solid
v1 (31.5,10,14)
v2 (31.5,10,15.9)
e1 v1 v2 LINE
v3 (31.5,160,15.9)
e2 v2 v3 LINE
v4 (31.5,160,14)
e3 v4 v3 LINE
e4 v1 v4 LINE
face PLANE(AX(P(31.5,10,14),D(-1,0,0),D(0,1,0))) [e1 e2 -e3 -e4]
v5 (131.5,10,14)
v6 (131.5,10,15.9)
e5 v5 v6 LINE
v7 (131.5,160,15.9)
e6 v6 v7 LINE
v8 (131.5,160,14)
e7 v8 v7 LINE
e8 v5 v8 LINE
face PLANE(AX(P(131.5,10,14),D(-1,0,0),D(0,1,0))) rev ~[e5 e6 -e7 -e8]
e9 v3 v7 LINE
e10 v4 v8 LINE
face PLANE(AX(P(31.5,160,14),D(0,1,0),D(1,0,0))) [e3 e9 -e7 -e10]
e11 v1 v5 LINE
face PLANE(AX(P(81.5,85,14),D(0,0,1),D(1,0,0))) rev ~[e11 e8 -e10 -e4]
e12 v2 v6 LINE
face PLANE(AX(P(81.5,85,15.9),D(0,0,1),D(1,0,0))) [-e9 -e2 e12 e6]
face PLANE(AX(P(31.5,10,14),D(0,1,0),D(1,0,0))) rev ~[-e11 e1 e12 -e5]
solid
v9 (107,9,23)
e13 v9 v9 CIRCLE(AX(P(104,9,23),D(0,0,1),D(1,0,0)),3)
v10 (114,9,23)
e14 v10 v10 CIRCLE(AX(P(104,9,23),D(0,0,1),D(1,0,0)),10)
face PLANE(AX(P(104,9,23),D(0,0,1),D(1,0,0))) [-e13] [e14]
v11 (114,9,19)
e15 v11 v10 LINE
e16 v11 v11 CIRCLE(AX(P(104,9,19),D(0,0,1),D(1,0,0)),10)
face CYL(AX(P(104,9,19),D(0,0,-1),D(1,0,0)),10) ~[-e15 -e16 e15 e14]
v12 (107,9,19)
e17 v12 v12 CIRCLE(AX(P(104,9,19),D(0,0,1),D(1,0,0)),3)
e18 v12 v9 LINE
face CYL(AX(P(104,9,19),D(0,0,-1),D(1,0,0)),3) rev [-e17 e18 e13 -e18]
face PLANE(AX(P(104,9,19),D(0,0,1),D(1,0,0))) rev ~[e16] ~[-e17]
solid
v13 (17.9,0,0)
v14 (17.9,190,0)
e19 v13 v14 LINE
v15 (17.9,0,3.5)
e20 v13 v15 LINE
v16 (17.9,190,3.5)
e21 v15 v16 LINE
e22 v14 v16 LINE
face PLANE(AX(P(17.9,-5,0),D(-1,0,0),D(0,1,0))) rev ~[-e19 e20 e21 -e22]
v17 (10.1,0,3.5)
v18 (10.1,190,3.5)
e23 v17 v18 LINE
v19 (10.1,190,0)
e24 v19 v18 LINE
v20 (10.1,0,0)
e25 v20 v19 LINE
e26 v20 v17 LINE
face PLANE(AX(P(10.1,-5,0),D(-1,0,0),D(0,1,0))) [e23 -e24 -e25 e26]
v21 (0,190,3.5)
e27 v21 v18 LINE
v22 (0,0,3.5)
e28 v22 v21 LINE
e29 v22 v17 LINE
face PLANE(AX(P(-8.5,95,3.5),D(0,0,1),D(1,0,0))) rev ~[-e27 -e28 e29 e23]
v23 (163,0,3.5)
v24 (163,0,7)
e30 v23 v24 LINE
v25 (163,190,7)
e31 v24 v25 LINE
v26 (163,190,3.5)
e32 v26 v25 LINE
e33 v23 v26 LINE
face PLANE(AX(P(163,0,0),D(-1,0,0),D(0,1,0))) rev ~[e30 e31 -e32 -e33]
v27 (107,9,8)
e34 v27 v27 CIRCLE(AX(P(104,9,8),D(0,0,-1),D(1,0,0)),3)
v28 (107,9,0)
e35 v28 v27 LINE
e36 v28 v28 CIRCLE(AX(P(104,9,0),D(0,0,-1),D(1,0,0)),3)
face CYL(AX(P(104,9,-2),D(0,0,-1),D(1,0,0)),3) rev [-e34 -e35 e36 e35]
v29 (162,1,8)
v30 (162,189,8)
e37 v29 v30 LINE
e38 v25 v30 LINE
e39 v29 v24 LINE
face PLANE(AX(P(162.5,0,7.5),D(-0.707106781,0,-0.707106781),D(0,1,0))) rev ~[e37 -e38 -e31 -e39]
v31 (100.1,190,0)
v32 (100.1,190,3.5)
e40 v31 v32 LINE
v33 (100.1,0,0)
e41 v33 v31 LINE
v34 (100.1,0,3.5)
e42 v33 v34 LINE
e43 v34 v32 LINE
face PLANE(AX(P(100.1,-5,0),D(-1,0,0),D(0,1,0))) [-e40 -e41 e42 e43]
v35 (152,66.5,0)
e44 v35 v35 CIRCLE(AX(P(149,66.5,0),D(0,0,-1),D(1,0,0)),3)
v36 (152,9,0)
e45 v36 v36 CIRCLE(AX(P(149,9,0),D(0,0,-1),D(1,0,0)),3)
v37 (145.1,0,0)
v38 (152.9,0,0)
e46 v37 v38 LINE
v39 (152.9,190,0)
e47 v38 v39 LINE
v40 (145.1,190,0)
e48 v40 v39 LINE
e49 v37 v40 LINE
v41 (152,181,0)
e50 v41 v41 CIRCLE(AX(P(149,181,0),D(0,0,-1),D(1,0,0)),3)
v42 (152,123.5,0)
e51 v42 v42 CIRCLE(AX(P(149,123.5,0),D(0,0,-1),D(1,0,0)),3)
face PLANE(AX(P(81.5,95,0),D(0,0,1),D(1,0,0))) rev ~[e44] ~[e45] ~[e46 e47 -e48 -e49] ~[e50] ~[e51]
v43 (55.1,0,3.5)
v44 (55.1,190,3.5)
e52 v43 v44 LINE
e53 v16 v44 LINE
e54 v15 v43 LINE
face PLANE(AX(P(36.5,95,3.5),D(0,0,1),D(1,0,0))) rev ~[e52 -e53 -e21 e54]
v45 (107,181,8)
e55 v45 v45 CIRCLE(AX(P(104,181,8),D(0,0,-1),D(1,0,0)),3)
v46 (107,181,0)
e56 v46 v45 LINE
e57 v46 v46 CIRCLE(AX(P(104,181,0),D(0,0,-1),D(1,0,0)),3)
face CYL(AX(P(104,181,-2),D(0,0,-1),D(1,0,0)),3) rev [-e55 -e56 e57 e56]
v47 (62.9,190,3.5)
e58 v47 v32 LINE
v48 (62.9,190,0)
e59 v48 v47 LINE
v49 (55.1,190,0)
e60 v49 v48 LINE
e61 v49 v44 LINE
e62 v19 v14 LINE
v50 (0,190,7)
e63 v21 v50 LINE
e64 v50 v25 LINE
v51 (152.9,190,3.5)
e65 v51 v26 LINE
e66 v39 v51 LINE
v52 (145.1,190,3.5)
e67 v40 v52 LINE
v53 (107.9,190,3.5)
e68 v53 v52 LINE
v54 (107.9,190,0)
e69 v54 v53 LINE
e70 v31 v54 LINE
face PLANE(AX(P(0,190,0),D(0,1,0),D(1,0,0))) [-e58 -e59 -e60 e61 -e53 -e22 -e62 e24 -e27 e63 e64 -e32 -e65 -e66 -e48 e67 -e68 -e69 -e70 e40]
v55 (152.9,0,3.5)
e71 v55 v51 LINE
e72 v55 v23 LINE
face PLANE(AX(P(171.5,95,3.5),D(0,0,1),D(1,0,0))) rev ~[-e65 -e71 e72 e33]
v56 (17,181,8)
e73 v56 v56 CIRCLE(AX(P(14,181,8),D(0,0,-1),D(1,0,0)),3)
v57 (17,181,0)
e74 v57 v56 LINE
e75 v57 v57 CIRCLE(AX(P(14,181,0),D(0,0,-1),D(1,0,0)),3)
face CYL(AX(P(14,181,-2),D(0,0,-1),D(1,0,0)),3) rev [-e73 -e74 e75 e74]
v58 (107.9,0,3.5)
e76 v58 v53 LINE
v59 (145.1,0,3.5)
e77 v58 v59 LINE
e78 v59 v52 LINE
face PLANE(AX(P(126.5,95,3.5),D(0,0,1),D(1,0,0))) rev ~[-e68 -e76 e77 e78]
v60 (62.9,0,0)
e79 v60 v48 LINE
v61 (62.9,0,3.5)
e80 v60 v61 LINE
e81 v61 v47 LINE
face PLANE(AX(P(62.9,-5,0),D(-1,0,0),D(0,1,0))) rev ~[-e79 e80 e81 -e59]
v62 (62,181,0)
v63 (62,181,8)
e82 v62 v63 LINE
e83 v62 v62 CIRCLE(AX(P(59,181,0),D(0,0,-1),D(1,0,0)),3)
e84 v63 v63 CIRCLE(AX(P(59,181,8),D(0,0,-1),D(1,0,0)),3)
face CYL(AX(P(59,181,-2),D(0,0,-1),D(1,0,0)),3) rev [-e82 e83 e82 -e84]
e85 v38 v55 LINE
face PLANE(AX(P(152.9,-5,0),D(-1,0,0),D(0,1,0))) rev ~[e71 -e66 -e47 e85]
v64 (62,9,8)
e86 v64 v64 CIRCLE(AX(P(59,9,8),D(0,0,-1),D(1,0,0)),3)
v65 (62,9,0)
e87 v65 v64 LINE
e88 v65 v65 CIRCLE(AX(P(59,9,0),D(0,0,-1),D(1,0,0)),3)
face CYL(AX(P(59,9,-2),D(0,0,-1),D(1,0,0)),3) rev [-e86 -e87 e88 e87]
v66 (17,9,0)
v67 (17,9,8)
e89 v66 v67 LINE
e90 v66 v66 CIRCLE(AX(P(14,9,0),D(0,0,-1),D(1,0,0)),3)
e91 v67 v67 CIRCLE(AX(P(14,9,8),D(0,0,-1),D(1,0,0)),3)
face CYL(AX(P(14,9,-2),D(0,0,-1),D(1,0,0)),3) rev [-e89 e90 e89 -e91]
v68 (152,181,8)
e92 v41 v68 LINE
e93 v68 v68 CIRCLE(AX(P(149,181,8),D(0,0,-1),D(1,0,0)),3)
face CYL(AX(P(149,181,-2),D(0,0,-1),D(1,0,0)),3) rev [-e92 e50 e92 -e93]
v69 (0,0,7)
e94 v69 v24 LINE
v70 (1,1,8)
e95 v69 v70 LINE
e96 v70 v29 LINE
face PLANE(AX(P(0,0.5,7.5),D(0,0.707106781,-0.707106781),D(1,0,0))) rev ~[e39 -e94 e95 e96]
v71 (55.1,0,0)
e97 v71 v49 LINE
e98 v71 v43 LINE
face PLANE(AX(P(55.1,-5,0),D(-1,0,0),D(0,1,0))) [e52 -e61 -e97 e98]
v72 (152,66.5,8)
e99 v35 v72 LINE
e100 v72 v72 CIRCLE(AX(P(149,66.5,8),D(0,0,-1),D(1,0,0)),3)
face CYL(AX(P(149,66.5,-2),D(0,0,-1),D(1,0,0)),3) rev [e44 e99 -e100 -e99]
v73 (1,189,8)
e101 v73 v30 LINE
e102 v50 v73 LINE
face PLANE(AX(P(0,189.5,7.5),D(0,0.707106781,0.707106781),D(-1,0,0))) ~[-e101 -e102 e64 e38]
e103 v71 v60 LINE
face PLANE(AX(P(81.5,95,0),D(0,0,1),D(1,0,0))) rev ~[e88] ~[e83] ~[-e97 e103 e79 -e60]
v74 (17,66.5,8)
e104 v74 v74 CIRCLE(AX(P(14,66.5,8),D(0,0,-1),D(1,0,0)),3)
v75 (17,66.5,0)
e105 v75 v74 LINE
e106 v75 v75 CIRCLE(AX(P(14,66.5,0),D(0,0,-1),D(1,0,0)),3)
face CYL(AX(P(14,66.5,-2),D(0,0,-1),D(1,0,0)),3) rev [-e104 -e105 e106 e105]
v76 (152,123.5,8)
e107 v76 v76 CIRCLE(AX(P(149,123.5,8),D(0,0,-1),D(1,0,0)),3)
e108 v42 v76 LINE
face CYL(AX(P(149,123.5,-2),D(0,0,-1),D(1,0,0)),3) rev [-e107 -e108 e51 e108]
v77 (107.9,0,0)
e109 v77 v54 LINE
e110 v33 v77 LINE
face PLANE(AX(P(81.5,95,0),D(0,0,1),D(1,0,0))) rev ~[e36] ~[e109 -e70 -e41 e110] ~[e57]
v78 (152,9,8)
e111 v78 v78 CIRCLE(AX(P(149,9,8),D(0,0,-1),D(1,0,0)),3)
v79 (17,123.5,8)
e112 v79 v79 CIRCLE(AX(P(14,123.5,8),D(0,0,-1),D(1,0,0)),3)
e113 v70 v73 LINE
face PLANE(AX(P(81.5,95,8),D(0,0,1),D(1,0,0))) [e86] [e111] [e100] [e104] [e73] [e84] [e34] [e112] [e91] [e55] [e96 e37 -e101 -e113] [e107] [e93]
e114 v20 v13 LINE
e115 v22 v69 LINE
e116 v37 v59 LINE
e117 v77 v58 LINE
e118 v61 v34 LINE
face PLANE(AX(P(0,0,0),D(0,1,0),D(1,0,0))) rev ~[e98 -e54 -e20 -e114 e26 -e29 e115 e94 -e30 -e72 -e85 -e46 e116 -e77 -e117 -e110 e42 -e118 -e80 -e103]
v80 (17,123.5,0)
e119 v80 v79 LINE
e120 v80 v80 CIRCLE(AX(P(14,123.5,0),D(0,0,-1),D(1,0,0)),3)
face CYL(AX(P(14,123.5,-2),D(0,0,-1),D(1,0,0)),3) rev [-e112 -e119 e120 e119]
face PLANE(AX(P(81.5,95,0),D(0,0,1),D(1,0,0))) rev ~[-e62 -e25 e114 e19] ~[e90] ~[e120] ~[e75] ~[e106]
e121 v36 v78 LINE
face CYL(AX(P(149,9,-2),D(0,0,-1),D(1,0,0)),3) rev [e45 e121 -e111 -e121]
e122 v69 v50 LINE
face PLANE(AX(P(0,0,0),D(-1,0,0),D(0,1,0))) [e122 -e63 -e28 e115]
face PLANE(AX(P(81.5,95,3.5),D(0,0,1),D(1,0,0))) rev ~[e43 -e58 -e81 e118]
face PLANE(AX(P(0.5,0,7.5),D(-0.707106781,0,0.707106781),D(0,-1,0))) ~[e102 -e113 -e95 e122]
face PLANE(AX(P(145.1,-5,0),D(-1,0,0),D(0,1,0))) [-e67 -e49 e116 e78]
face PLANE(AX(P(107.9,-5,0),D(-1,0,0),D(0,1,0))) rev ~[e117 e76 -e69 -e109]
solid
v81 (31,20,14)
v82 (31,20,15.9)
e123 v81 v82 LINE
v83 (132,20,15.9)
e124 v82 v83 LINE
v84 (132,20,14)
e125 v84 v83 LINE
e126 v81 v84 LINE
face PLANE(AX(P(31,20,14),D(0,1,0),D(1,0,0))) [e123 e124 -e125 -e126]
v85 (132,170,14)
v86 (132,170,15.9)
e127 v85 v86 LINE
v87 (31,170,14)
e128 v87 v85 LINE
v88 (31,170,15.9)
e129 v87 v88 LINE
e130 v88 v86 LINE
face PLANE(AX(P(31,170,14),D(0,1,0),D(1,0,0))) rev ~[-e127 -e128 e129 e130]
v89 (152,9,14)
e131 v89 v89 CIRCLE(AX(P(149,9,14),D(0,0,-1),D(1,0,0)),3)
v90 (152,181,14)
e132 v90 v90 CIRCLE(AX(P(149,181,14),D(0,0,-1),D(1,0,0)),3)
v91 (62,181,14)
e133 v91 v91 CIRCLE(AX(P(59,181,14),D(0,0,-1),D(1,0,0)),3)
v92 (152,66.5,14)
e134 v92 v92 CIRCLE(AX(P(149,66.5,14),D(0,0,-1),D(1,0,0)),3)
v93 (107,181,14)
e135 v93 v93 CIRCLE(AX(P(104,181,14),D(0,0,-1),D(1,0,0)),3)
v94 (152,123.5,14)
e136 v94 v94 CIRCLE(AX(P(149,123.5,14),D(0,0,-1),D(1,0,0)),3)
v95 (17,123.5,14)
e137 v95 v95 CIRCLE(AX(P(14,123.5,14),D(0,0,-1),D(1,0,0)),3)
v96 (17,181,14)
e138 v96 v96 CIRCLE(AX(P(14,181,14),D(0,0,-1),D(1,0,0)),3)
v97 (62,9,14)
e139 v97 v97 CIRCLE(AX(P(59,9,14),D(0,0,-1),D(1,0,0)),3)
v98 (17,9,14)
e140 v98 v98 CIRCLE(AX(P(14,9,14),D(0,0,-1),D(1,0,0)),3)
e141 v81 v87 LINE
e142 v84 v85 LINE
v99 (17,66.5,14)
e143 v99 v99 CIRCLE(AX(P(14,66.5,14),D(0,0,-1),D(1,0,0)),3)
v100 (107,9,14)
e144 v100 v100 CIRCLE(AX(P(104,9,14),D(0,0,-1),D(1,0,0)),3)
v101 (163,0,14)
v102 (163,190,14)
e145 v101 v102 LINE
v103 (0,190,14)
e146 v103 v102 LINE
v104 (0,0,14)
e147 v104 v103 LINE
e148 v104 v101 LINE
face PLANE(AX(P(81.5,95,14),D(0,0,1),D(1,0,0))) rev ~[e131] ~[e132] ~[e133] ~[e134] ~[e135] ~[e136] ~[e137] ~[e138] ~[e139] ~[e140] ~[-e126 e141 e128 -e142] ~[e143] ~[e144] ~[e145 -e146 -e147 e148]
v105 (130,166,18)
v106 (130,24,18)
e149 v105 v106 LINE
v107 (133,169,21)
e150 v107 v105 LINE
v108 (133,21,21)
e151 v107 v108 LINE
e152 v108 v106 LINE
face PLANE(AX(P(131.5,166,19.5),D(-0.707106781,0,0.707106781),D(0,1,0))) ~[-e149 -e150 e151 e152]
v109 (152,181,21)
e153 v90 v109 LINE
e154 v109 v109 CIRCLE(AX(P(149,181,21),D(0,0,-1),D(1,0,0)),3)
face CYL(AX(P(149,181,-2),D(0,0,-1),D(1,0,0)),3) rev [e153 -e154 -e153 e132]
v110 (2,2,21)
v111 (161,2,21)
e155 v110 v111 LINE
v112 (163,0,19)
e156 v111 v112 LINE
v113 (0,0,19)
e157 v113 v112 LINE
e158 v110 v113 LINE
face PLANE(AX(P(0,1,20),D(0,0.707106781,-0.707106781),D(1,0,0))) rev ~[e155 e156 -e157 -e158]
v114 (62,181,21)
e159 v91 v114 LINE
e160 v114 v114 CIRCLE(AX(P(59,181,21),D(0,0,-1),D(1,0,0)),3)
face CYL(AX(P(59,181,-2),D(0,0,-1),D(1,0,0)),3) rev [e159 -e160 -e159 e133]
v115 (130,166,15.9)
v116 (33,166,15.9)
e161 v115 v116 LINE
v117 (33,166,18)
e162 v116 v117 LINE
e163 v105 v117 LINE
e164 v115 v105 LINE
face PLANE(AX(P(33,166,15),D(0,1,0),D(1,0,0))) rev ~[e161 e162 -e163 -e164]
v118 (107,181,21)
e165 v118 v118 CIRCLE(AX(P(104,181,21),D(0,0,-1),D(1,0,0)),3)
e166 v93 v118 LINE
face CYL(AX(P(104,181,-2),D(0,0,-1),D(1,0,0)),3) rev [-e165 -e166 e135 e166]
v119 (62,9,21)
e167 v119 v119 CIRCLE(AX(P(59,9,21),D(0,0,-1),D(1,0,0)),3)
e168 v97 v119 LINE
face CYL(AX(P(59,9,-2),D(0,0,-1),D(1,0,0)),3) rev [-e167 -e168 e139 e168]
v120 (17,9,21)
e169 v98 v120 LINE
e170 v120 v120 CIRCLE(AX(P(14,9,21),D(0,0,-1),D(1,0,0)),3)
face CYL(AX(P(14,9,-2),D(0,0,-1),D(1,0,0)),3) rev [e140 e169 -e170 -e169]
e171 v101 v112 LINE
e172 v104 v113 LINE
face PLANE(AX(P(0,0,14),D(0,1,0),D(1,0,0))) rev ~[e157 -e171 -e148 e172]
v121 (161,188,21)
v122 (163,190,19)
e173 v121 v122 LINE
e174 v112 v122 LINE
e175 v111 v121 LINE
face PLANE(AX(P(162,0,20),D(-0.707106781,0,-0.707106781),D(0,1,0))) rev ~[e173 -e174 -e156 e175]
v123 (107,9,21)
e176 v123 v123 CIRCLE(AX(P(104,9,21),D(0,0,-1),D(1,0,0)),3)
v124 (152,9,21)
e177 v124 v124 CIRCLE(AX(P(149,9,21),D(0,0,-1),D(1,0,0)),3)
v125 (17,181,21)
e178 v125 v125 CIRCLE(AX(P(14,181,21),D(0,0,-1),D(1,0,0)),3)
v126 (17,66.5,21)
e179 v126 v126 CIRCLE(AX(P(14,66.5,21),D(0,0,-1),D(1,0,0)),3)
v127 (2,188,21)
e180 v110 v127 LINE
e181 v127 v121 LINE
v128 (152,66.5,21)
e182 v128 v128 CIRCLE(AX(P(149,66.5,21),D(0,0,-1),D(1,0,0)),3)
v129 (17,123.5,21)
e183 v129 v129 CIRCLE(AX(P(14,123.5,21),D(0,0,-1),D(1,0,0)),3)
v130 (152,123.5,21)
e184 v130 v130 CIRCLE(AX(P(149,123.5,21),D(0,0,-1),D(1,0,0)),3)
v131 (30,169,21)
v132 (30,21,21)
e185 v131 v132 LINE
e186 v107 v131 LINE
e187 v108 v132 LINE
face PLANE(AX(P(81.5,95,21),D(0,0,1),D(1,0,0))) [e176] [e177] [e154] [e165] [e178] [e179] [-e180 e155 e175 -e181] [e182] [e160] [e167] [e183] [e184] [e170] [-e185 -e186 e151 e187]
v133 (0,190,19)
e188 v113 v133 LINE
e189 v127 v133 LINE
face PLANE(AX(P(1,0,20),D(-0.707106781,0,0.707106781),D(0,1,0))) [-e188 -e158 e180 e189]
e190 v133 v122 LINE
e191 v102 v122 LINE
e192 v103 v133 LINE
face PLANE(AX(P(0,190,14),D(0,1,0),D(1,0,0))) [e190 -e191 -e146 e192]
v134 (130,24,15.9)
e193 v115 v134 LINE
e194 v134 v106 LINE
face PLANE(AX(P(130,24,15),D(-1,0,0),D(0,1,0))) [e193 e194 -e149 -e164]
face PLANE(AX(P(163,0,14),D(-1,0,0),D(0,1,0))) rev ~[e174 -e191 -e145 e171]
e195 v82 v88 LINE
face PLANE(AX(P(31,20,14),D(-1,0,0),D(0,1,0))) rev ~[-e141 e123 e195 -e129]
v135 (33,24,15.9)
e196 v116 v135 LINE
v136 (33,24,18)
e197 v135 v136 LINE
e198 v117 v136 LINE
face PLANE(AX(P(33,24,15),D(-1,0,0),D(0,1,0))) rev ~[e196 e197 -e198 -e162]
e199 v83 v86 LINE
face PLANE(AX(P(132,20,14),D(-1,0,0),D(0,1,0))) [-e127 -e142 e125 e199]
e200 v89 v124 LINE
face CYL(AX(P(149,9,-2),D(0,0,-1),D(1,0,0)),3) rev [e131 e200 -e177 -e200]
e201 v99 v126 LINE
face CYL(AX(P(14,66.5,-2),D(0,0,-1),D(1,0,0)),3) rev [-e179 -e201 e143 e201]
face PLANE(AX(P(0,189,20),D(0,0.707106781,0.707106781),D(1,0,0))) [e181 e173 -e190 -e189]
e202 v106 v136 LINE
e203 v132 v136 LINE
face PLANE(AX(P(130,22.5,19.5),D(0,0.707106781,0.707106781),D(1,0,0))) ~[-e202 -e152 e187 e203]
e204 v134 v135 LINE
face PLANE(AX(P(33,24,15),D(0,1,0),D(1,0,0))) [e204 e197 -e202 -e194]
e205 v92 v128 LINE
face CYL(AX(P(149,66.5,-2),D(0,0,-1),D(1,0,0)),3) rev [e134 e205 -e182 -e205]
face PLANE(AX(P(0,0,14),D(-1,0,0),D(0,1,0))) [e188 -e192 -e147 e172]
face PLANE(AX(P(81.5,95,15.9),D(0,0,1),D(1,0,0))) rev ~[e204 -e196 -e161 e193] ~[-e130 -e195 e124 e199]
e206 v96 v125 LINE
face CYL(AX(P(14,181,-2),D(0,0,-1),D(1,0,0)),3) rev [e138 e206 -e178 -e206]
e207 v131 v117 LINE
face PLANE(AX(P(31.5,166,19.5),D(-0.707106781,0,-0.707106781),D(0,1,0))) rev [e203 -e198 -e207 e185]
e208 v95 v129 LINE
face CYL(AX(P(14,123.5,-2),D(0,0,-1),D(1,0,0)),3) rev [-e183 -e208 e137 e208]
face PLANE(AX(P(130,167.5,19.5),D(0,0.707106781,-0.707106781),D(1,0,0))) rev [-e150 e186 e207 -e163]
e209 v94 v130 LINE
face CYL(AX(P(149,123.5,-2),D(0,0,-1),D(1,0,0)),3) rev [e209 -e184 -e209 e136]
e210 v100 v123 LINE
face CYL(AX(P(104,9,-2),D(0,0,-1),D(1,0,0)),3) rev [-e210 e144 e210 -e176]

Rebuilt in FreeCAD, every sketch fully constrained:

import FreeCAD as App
import Part
import Sketcher
from FreeCAD import Vector


def edges_at(feature, points):
    """Names of the edges that pass closest to the given points."""
    edges = feature.Shape.Edges
    near = lambda p: min(range(len(edges)), key=lambda i: edges[i].distToShape(Part.Vertex(*p))[0])
    return sorted({f"Edge{near(p) + 1}" for p in points})


def add_polygon(sketch, points):
    """Adds a closed chain of lines whose ends are joined by coincident constraints."""
    first, n = sketch.GeometryCount, len(points)
    for a, b in zip(points, points[1:] + points[:1]):
        sketch.addGeometry(Part.LineSegment(App.Vector(*a, 0), App.Vector(*b, 0)), False)
    for i in range(n):
        sketch.addConstraint(Sketcher.Constraint("Coincident", first + i, 2, first + (i + 1) % n, 1))

doc = App.newDocument("Part")
body = doc.addObject("PartDesign::Body", "Body")

# Sketch on XY plane
sketch1 = body.newObject("Sketcher::SketchObject", "Sketch")
sketch1.AttachmentSupport = (doc.getObject("XY_Plane"), [""])
sketch1.MapMode = "FlatFace"
sketch1.AttachmentOffset = App.Placement(Vector(0, 0, 14), App.Rotation())
add_polygon(sketch1, [(32, 160), (32, 10), (132, 10), (132, 160)])  # lines 0-3
sketch1.addConstraint([
    Sketcher.Constraint("Vertical", 0),
    Sketcher.Constraint("Horizontal", 1),
    Sketcher.Constraint("Vertical", 2),
    Sketcher.Constraint("Horizontal", 3),
    Sketcher.Constraint("DistanceX", 1, 1, 1, 2, 100.0),
    Sketcher.Constraint("DistanceY", 0, 2, 0, 1, 150.0),
    Sketcher.Constraint("DistanceY", -1, 1, 0, 2, 10.0),
    Sketcher.Constraint("DistanceX", -1, 1, 0, 2, 31.5),
])
pad1 = body.newObject("PartDesign::Pad", "Pad")
pad1.Profile = sketch1
pad1.Length = 1.9
body2 = doc.addObject("PartDesign::Body", "Body001")

# Sketch on XY plane
sketch2 = body2.newObject("Sketcher::SketchObject", "Sketch001")
sketch2.AttachmentSupport = (doc.getObject("XY_Plane001"), [""])
sketch2.MapMode = "FlatFace"
sketch2.AttachmentOffset = App.Placement(Vector(0, 0, 19), App.Rotation())
sketch2.addGeometry([
    Part.Circle(Vector(104, 9, 0), Vector(0, 0, 1), 10),
    Part.Circle(Vector(104, 9, 0), Vector(0, 0, 1), 3),
], False)
sketch2.addConstraint([
    Sketcher.Constraint("Coincident", 1, 3, 0, 3),
    Sketcher.Constraint("Diameter", 0, 20.0),
    Sketcher.Constraint("Diameter", 1, 6.0),
    Sketcher.Constraint("DistanceX", -1, 1, 0, 3, 104.0),
    Sketcher.Constraint("DistanceY", -1, 1, 0, 3, 9.0),
])
pad2 = body2.newObject("PartDesign::Pad", "Pad001")
pad2.Profile = sketch2
pad2.Length = 4
body3 = doc.addObject("PartDesign::Body", "Body002")

# Sketch on XY plane
sketch3 = body3.newObject("Sketcher::SketchObject", "Sketch002")
sketch3.AttachmentSupport = (doc.getObject("XY_Plane002"), [""])
sketch3.MapMode = "FlatFace"
sketch3.AttachmentOffset = App.Placement(Vector(0, 0, 15), App.Rotation())
add_polygon(sketch3, [(33, 166), (33, 24), (130, 24), (130, 166)])  # lines 0-3
sketch3.addConstraint([
    Sketcher.Constraint("Vertical", 0),
    Sketcher.Constraint("Horizontal", 1),
    Sketcher.Constraint("Vertical", 2),
    Sketcher.Constraint("Horizontal", 3),
    Sketcher.Constraint("DistanceX", 1, 1, 1, 2, 97.0),
    Sketcher.Constraint("DistanceY", 0, 2, 0, 1, 142.0),
    Sketcher.Constraint("DistanceX", -1, 1, 0, 2, 33.0),
    Sketcher.Constraint("DistanceY", -1, 1, 0, 2, 24.0),
])
pad3 = body3.newObject("PartDesign::Pad", "Pad002")
pad3.Profile = sketch3
pad3.Length = 10
body4 = doc.addObject("PartDesign::Body", "Body003")

# Sketch on XY plane
sketch4 = body4.newObject("Sketcher::SketchObject", "Sketch003")
sketch4.AttachmentSupport = (doc.getObject("XY_Plane003"), [""])
sketch4.MapMode = "FlatFace"
sketch4.AttachmentOffset = App.Placement(Vector(0, 0, 14), App.Rotation())
add_polygon(sketch4, [(31, 170), (31, 20), (132, 20), (132, 170)])  # lines 0-3
sketch4.addConstraint([
    Sketcher.Constraint("Vertical", 0),
    Sketcher.Constraint("Horizontal", 1),
    Sketcher.Constraint("Vertical", 2),
    Sketcher.Constraint("Horizontal", 3),
    Sketcher.Constraint("DistanceX", 1, 1, 1, 2, 101.0),
    Sketcher.Constraint("DistanceY", 0, 2, 0, 1, 150.0),
    Sketcher.Constraint("DistanceX", -1, 1, 0, 2, 31.0),
    Sketcher.Constraint("DistanceY", -1, 1, 0, 2, 20.0),
])
pad4 = body4.newObject("PartDesign::Pad", "Pad003")
pad4.Profile = sketch4
pad4.Length = 1.9
body5 = doc.addObject("PartDesign::Body", "Body004")

# Sketch on XY plane
sketch5 = body5.newObject("Sketcher::SketchObject", "Sketch004")
sketch5.AttachmentSupport = (doc.getObject("XY_Plane004"), [""])
sketch5.MapMode = "FlatFace"
sketch5.AttachmentOffset = App.Placement(Vector(0, 0, -2), App.Rotation())
sketch5.addGeometry(Part.Circle(Vector(14, 66.5, 0), Vector(0, 0, 1), 3), False)
sketch5.addConstraint([
    Sketcher.Constraint("Diameter", 0, 6.0),
    Sketcher.Constraint("DistanceX", -1, 1, 0, 3, 14.0),
    Sketcher.Constraint("DistanceY", -1, 1, 0, 3, 66.5),
])
pad5 = body5.newObject("PartDesign::Pad", "Pad004")
pad5.Profile = sketch5
pad5.Length = 30
body6 = doc.addObject("PartDesign::Body", "Body005")

# Sketch on XY plane
sketch6 = body6.newObject("Sketcher::SketchObject", "Sketch005")
sketch6.AttachmentSupport = (doc.getObject("XY_Plane005"), [""])
sketch6.MapMode = "FlatFace"
sketch6.AttachmentOffset = App.Placement(Vector(0, 0, -2), App.Rotation())
sketch6.addGeometry(Part.Circle(Vector(14, 123.5, 0), Vector(0, 0, 1), 3), False)
sketch6.addConstraint([
    Sketcher.Constraint("Diameter", 0, 6.0),
    Sketcher.Constraint("DistanceX", -1, 1, 0, 3, 14.0),
    Sketcher.Constraint("DistanceY", -1, 1, 0, 3, 123.5),
])
pad6 = body6.newObject("PartDesign::Pad", "Pad005")
pad6.Profile = sketch6
pad6.Length = 30
body7 = doc.addObject("PartDesign::Body", "Body006")

# Sketch on XY plane
sketch7 = body7.newObject("Sketcher::SketchObject", "Sketch006")
sketch7.AttachmentSupport = (doc.getObject("XY_Plane006"), [""])
sketch7.MapMode = "FlatFace"
sketch7.AttachmentOffset = App.Placement(Vector(0, 0, -2), App.Rotation())
sketch7.addGeometry(Part.Circle(Vector(14, 181, 0), Vector(0, 0, 1), 3), False)
sketch7.addConstraint([
    Sketcher.Constraint("Diameter", 0, 6.0),
    Sketcher.Constraint("DistanceX", -1, 1, 0, 3, 14.0),
    Sketcher.Constraint("DistanceY", -1, 1, 0, 3, 181.0),
])
pad7 = body7.newObject("PartDesign::Pad", "Pad006")
pad7.Profile = sketch7
pad7.Length = 30
body8 = doc.addObject("PartDesign::Body", "Body007")

# Sketch on XY plane
sketch8 = body8.newObject("Sketcher::SketchObject", "Sketch007")
sketch8.AttachmentSupport = (doc.getObject("XY_Plane007"), [""])
sketch8.MapMode = "FlatFace"
sketch8.AttachmentOffset = App.Placement(Vector(0, 0, -2), App.Rotation())
sketch8.addGeometry(Part.Circle(Vector(59, 181, 0), Vector(0, 0, 1), 3), False)
sketch8.addConstraint([
    Sketcher.Constraint("Diameter", 0, 6.0),
    Sketcher.Constraint("DistanceX", -1, 1, 0, 3, 59.0),
    Sketcher.Constraint("DistanceY", -1, 1, 0, 3, 181.0),
])
pad8 = body8.newObject("PartDesign::Pad", "Pad007")
pad8.Profile = sketch8
pad8.Length = 30
body9 = doc.addObject("PartDesign::Body", "Body008")

# Sketch on XY plane
sketch9 = body9.newObject("Sketcher::SketchObject", "Sketch008")
sketch9.AttachmentSupport = (doc.getObject("XY_Plane008"), [""])
sketch9.MapMode = "FlatFace"
sketch9.AttachmentOffset = App.Placement(Vector(0, 0, -2), App.Rotation())
sketch9.addGeometry(Part.Circle(Vector(104, 181, 0), Vector(0, 0, 1), 3), False)
sketch9.addConstraint([
    Sketcher.Constraint("Diameter", 0, 6.0),
    Sketcher.Constraint("DistanceX", -1, 1, 0, 3, 104.0),
    Sketcher.Constraint("DistanceY", -1, 1, 0, 3, 181.0),
])
pad9 = body9.newObject("PartDesign::Pad", "Pad008")
pad9.Profile = sketch9
pad9.Length = 30
body10 = doc.addObject("PartDesign::Body", "Body009")

# Sketch on XY plane
sketch10 = body10.newObject("Sketcher::SketchObject", "Sketch009")
sketch10.AttachmentSupport = (doc.getObject("XY_Plane009"), [""])
sketch10.MapMode = "FlatFace"
sketch10.AttachmentOffset = App.Placement(Vector(0, 0, -2), App.Rotation())
sketch10.addGeometry(Part.Circle(Vector(149, 181, 0), Vector(0, 0, 1), 3), False)
sketch10.addConstraint([
    Sketcher.Constraint("Diameter", 0, 6.0),
    Sketcher.Constraint("DistanceX", -1, 1, 0, 3, 149.0),
    Sketcher.Constraint("DistanceY", -1, 1, 0, 3, 181.0),
])
pad10 = body10.newObject("PartDesign::Pad", "Pad009")
pad10.Profile = sketch10
pad10.Length = 30
body11 = doc.addObject("PartDesign::Body", "Body010")

# Sketch on XY plane
sketch11 = body11.newObject("Sketcher::SketchObject", "Sketch010")
sketch11.AttachmentSupport = (doc.getObject("XY_Plane010"), [""])
sketch11.MapMode = "FlatFace"
sketch11.AttachmentOffset = App.Placement(Vector(0, 0, -2), App.Rotation())
sketch11.addGeometry(Part.Circle(Vector(149, 123.5, 0), Vector(0, 0, 1), 3), False)
sketch11.addConstraint([
    Sketcher.Constraint("Diameter", 0, 6.0),
    Sketcher.Constraint("DistanceX", -1, 1, 0, 3, 149.0),
    Sketcher.Constraint("DistanceY", -1, 1, 0, 3, 123.5),
])
pad11 = body11.newObject("PartDesign::Pad", "Pad010")
pad11.Profile = sketch11
pad11.Length = 30
body12 = doc.addObject("PartDesign::Body", "Body011")

# Sketch on XY plane
sketch12 = body12.newObject("Sketcher::SketchObject", "Sketch011")
sketch12.AttachmentSupport = (doc.getObject("XY_Plane011"), [""])
sketch12.MapMode = "FlatFace"
sketch12.AttachmentOffset = App.Placement(Vector(0, 0, -2), App.Rotation())
sketch12.addGeometry(Part.Circle(Vector(149, 66.5, 0), Vector(0, 0, 1), 3), False)
sketch12.addConstraint([
    Sketcher.Constraint("Diameter", 0, 6.0),
    Sketcher.Constraint("DistanceX", -1, 1, 0, 3, 149.0),
    Sketcher.Constraint("DistanceY", -1, 1, 0, 3, 66.5),
])
pad12 = body12.newObject("PartDesign::Pad", "Pad011")
pad12.Profile = sketch12
pad12.Length = 30
body13 = doc.addObject("PartDesign::Body", "Body012")

# Sketch on XY plane
sketch13 = body13.newObject("Sketcher::SketchObject", "Sketch012")
sketch13.AttachmentSupport = (doc.getObject("XY_Plane012"), [""])
sketch13.MapMode = "FlatFace"
sketch13.AttachmentOffset = App.Placement(Vector(0, 0, -2), App.Rotation())
sketch13.addGeometry(Part.Circle(Vector(149, 9, 0), Vector(0, 0, 1), 3), False)
sketch13.addConstraint([
    Sketcher.Constraint("Diameter", 0, 6.0),
    Sketcher.Constraint("DistanceX", -1, 1, 0, 3, 149.0),
    Sketcher.Constraint("DistanceY", -1, 1, 0, 3, 9.0),
])
pad13 = body13.newObject("PartDesign::Pad", "Pad012")
pad13.Profile = sketch13
pad13.Length = 30
body14 = doc.addObject("PartDesign::Body", "Body013")

# Sketch on XY plane
sketch14 = body14.newObject("Sketcher::SketchObject", "Sketch013")
sketch14.AttachmentSupport = (doc.getObject("XY_Plane013"), [""])
sketch14.MapMode = "FlatFace"
sketch14.AttachmentOffset = App.Placement(Vector(0, 0, -2), App.Rotation())
sketch14.addGeometry(Part.Circle(Vector(104, 9, 0), Vector(0, 0, 1), 3), False)
sketch14.addConstraint([
    Sketcher.Constraint("Diameter", 0, 6.0),
    Sketcher.Constraint("DistanceX", -1, 1, 0, 3, 104.0),
    Sketcher.Constraint("DistanceY", -1, 1, 0, 3, 9.0),
])
pad14 = body14.newObject("PartDesign::Pad", "Pad013")
pad14.Profile = sketch14
pad14.Length = 30
body15 = doc.addObject("PartDesign::Body", "Body014")

# Sketch on XY plane
sketch15 = body15.newObject("Sketcher::SketchObject", "Sketch014")
sketch15.AttachmentSupport = (doc.getObject("XY_Plane014"), [""])
sketch15.MapMode = "FlatFace"
sketch15.AttachmentOffset = App.Placement(Vector(0, 0, -2), App.Rotation())
sketch15.addGeometry(Part.Circle(Vector(59, 9, 0), Vector(0, 0, 1), 3), False)
sketch15.addConstraint([
    Sketcher.Constraint("Diameter", 0, 6.0),
    Sketcher.Constraint("DistanceX", -1, 1, 0, 3, 59.0),
    Sketcher.Constraint("DistanceY", -1, 1, 0, 3, 9.0),
])
pad15 = body15.newObject("PartDesign::Pad", "Pad014")
pad15.Profile = sketch15
pad15.Length = 30
body16 = doc.addObject("PartDesign::Body", "Body015")

# Sketch on XY plane
sketch16 = body16.newObject("Sketcher::SketchObject", "Sketch015")
sketch16.AttachmentSupport = (doc.getObject("XY_Plane015"), [""])
sketch16.MapMode = "FlatFace"
sketch16.AttachmentOffset = App.Placement(Vector(0, 0, -2), App.Rotation())
sketch16.addGeometry(Part.Circle(Vector(14, 9, 0), Vector(0, 0, 1), 3), False)
sketch16.addConstraint([
    Sketcher.Constraint("Diameter", 0, 6.0),
    Sketcher.Constraint("DistanceX", -1, 1, 0, 3, 14.0),
    Sketcher.Constraint("DistanceY", -1, 1, 0, 3, 9.0),
])
pad16 = body16.newObject("PartDesign::Pad", "Pad015")
pad16.Profile = sketch16
pad16.Length = 30
body17 = doc.addObject("PartDesign::Body", "Body016")

# Sketch on XY plane
sketch17 = body17.newObject("Sketcher::SketchObject", "Sketch016")
sketch17.AttachmentSupport = (doc.getObject("XY_Plane016"), [""])
sketch17.MapMode = "FlatFace"
sketch17.AttachmentOffset = App.Placement(Vector(0, 0, 14), App.Rotation())
add_polygon(sketch17, [(0, 190), (0, 0), (163, 0), (163, 190)])  # lines 0-3
sketch17.addConstraint([
    Sketcher.Constraint("Vertical", 0),
    Sketcher.Constraint("Horizontal", 1),
    Sketcher.Constraint("Vertical", 2),
    Sketcher.Constraint("Horizontal", 3),
    Sketcher.Constraint("Coincident", 0, 2, -1, 1),
    Sketcher.Constraint("DistanceX", 1, 1, 1, 2, 163.0),
    Sketcher.Constraint("DistanceY", 0, 2, 0, 1, 190.0),
])
pad17 = body17.newObject("PartDesign::Pad", "Pad016")
pad17.Profile = sketch17
pad17.Length = 7
doc.recompute()

boolean = body17.newObject("PartDesign::Boolean", "Boolean")
boolean.Type = "Cut"
boolean.addObjects([body16])
doc.recompute()

boolean2 = body17.newObject("PartDesign::Boolean", "Boolean001")
boolean2.Type = "Cut"
boolean2.addObjects([body15])
doc.recompute()

boolean3 = body17.newObject("PartDesign::Boolean", "Boolean002")
boolean3.Type = "Cut"
boolean3.addObjects([body14])
doc.recompute()

boolean4 = body17.newObject("PartDesign::Boolean", "Boolean003")
boolean4.Type = "Cut"
boolean4.addObjects([body13])
doc.recompute()

boolean5 = body17.newObject("PartDesign::Boolean", "Boolean004")
boolean5.Type = "Cut"
boolean5.addObjects([body12])
doc.recompute()

boolean6 = body17.newObject("PartDesign::Boolean", "Boolean005")
boolean6.Type = "Cut"
boolean6.addObjects([body11])
doc.recompute()

boolean7 = body17.newObject("PartDesign::Boolean", "Boolean006")
boolean7.Type = "Cut"
boolean7.addObjects([body10])
doc.recompute()

boolean8 = body17.newObject("PartDesign::Boolean", "Boolean007")
boolean8.Type = "Cut"
boolean8.addObjects([body9])
doc.recompute()

boolean9 = body17.newObject("PartDesign::Boolean", "Boolean008")
boolean9.Type = "Cut"
boolean9.addObjects([body8])
doc.recompute()

boolean10 = body17.newObject("PartDesign::Boolean", "Boolean009")
boolean10.Type = "Cut"
boolean10.addObjects([body7])
doc.recompute()

boolean11 = body17.newObject("PartDesign::Boolean", "Boolean010")
boolean11.Type = "Cut"
boolean11.addObjects([body6])
doc.recompute()

boolean12 = body17.newObject("PartDesign::Boolean", "Boolean011")
boolean12.Type = "Cut"
boolean12.addObjects([body5])
doc.recompute()

boolean13 = body17.newObject("PartDesign::Boolean", "Boolean012")
boolean13.Type = "Cut"
boolean13.addObjects([body4])
doc.recompute()

boolean14 = body17.newObject("PartDesign::Boolean", "Boolean013")
boolean14.Type = "Cut"
boolean14.addObjects([body3])
doc.recompute()

chamfer = body17.newObject("PartDesign::Chamfer", "Chamfer")
chamfer.Base = (boolean14, edges_at(boolean14, [
    (81.5, 24, 21),
    (130, 95, 21),
    (81.5, 166, 21),
    (33, 95, 21),
]))
chamfer.Size = 3
doc.recompute()

chamfer2 = body17.newObject("PartDesign::Chamfer", "Chamfer001")
chamfer2.Base = (chamfer, edges_at(chamfer, [
    (0, 95, 21),
    (81.5, 0, 21),
    (163, 95, 21),
    (81.5, 190, 21),
]))
chamfer2.Size = 2
body18 = doc.addObject("PartDesign::Body", "Body017")

# Sketch on XY plane
sketch18 = body18.newObject("Sketcher::SketchObject", "Sketch017")
sketch18.AttachmentSupport = (doc.getObject("XY_Plane017"), [""])
sketch18.MapMode = "FlatFace"
sketch18.AttachmentOffset = App.Placement(Vector(0, 0, -2), App.Rotation())
sketch18.addGeometry(Part.Circle(Vector(149, 181, 0), Vector(0, 0, 1), 3), False)
sketch18.addConstraint([
    Sketcher.Constraint("Diameter", 0, 6.0),
    Sketcher.Constraint("DistanceX", -1, 1, 0, 3, 149.0),
    Sketcher.Constraint("DistanceY", -1, 1, 0, 3, 181.0),
])
pad18 = body18.newObject("PartDesign::Pad", "Pad017")
pad18.Profile = sketch18
pad18.Length = 30
body19 = doc.addObject("PartDesign::Body", "Body018")

# Sketch on XY plane
sketch19 = body19.newObject("Sketcher::SketchObject", "Sketch018")
sketch19.AttachmentSupport = (doc.getObject("XY_Plane018"), [""])
sketch19.MapMode = "FlatFace"
sketch19.AttachmentOffset = App.Placement(Vector(0, 0, -2), App.Rotation())
sketch19.addGeometry(Part.Circle(Vector(104, 181, 0), Vector(0, 0, 1), 3), False)
sketch19.addConstraint([
    Sketcher.Constraint("Diameter", 0, 6.0),
    Sketcher.Constraint("DistanceX", -1, 1, 0, 3, 104.0),
    Sketcher.Constraint("DistanceY", -1, 1, 0, 3, 181.0),
])
pad19 = body19.newObject("PartDesign::Pad", "Pad018")
pad19.Profile = sketch19
pad19.Length = 30
body20 = doc.addObject("PartDesign::Body", "Body019")

# Sketch on XY plane
sketch20 = body20.newObject("Sketcher::SketchObject", "Sketch019")
sketch20.AttachmentSupport = (doc.getObject("XY_Plane019"), [""])
sketch20.MapMode = "FlatFace"
sketch20.AttachmentOffset = App.Placement(Vector(0, 0, -2), App.Rotation())
sketch20.addGeometry(Part.Circle(Vector(59, 181, 0), Vector(0, 0, 1), 3), False)
sketch20.addConstraint([
    Sketcher.Constraint("Diameter", 0, 6.0),
    Sketcher.Constraint("DistanceX", -1, 1, 0, 3, 59.0),
    Sketcher.Constraint("DistanceY", -1, 1, 0, 3, 181.0),
])
pad20 = body20.newObject("PartDesign::Pad", "Pad019")
pad20.Profile = sketch20
pad20.Length = 30
body21 = doc.addObject("PartDesign::Body", "Body020")

# Sketch on XY plane
sketch21 = body21.newObject("Sketcher::SketchObject", "Sketch020")
sketch21.AttachmentSupport = (doc.getObject("XY_Plane020"), [""])
sketch21.MapMode = "FlatFace"
sketch21.AttachmentOffset = App.Placement(Vector(0, 0, -2), App.Rotation())
sketch21.addGeometry(Part.Circle(Vector(14, 181, 0), Vector(0, 0, 1), 3), False)
sketch21.addConstraint([
    Sketcher.Constraint("Diameter", 0, 6.0),
    Sketcher.Constraint("DistanceX", -1, 1, 0, 3, 14.0),
    Sketcher.Constraint("DistanceY", -1, 1, 0, 3, 181.0),
])
pad21 = body21.newObject("PartDesign::Pad", "Pad020")
pad21.Profile = sketch21
pad21.Length = 30
body22 = doc.addObject("PartDesign::Body", "Body021")

# Sketch on XY plane
sketch22 = body22.newObject("Sketcher::SketchObject", "Sketch021")
sketch22.AttachmentSupport = (doc.getObject("XY_Plane021"), [""])
sketch22.MapMode = "FlatFace"
sketch22.AttachmentOffset = App.Placement(Vector(0, 0, -2), App.Rotation())
sketch22.addGeometry(Part.Circle(Vector(14, 123.5, 0), Vector(0, 0, 1), 3), False)
sketch22.addConstraint([
    Sketcher.Constraint("Diameter", 0, 6.0),
    Sketcher.Constraint("DistanceX", -1, 1, 0, 3, 14.0),
    Sketcher.Constraint("DistanceY", -1, 1, 0, 3, 123.5),
])
pad22 = body22.newObject("PartDesign::Pad", "Pad021")
pad22.Profile = sketch22
pad22.Length = 30
body23 = doc.addObject("PartDesign::Body", "Body022")

# Sketch on XY plane
sketch23 = body23.newObject("Sketcher::SketchObject", "Sketch022")
sketch23.AttachmentSupport = (doc.getObject("XY_Plane022"), [""])
sketch23.MapMode = "FlatFace"
sketch23.AttachmentOffset = App.Placement(Vector(0, 0, -2), App.Rotation())
sketch23.addGeometry(Part.Circle(Vector(149, 123.5, 0), Vector(0, 0, 1), 3), False)
sketch23.addConstraint([
    Sketcher.Constraint("Diameter", 0, 6.0),
    Sketcher.Constraint("DistanceX", -1, 1, 0, 3, 149.0),
    Sketcher.Constraint("DistanceY", -1, 1, 0, 3, 123.5),
])
pad23 = body23.newObject("PartDesign::Pad", "Pad022")
pad23.Profile = sketch23
pad23.Length = 30
body24 = doc.addObject("PartDesign::Body", "Body023")

# Sketch on XY plane
sketch24 = body24.newObject("Sketcher::SketchObject", "Sketch023")
sketch24.AttachmentSupport = (doc.getObject("XY_Plane023"), [""])
sketch24.MapMode = "FlatFace"
sketch24.AttachmentOffset = App.Placement(Vector(0, 0, -2), App.Rotation())
sketch24.addGeometry(Part.Circle(Vector(149, 66.5, 0), Vector(0, 0, 1), 3), False)
sketch24.addConstraint([
    Sketcher.Constraint("Diameter", 0, 6.0),
    Sketcher.Constraint("DistanceX", -1, 1, 0, 3, 149.0),
    Sketcher.Constraint("DistanceY", -1, 1, 0, 3, 66.5),
])
pad24 = body24.newObject("PartDesign::Pad", "Pad023")
pad24.Profile = sketch24
pad24.Length = 30
body25 = doc.addObject("PartDesign::Body", "Body024")

# Sketch on XY plane
sketch25 = body25.newObject("Sketcher::SketchObject", "Sketch024")
sketch25.AttachmentSupport = (doc.getObject("XY_Plane024"), [""])
sketch25.MapMode = "FlatFace"
sketch25.AttachmentOffset = App.Placement(Vector(0, 0, -2), App.Rotation())
sketch25.addGeometry(Part.Circle(Vector(149, 9, 0), Vector(0, 0, 1), 3), False)
sketch25.addConstraint([
    Sketcher.Constraint("Diameter", 0, 6.0),
    Sketcher.Constraint("DistanceX", -1, 1, 0, 3, 149.0),
    Sketcher.Constraint("DistanceY", -1, 1, 0, 3, 9.0),
])
pad25 = body25.newObject("PartDesign::Pad", "Pad024")
pad25.Profile = sketch25
pad25.Length = 30
body26 = doc.addObject("PartDesign::Body", "Body025")

# Sketch on XY plane
sketch26 = body26.newObject("Sketcher::SketchObject", "Sketch025")
sketch26.AttachmentSupport = (doc.getObject("XY_Plane025"), [""])
sketch26.MapMode = "FlatFace"
sketch26.AttachmentOffset = App.Placement(Vector(0, 0, -2), App.Rotation())
sketch26.addGeometry(Part.Circle(Vector(104, 9, 0), Vector(0, 0, 1), 3), False)
sketch26.addConstraint([
    Sketcher.Constraint("Diameter", 0, 6.0),
    Sketcher.Constraint("DistanceX", -1, 1, 0, 3, 104.0),
    Sketcher.Constraint("DistanceY", -1, 1, 0, 3, 9.0),
])
pad26 = body26.newObject("PartDesign::Pad", "Pad025")
pad26.Profile = sketch26
pad26.Length = 30
body27 = doc.addObject("PartDesign::Body", "Body026")

# Sketch on XY plane
sketch27 = body27.newObject("Sketcher::SketchObject", "Sketch026")
sketch27.AttachmentSupport = (doc.getObject("XY_Plane026"), [""])
sketch27.MapMode = "FlatFace"
sketch27.AttachmentOffset = App.Placement(Vector(0, 0, -2), App.Rotation())
sketch27.addGeometry(Part.Circle(Vector(14, 66.5, 0), Vector(0, 0, 1), 3), False)
sketch27.addConstraint([
    Sketcher.Constraint("Diameter", 0, 6.0),
    Sketcher.Constraint("DistanceX", -1, 1, 0, 3, 14.0),
    Sketcher.Constraint("DistanceY", -1, 1, 0, 3, 66.5),
])
pad27 = body27.newObject("PartDesign::Pad", "Pad026")
pad27.Profile = sketch27
pad27.Length = 30
body28 = doc.addObject("PartDesign::Body", "Body027")

# Sketch on XY plane
sketch28 = body28.newObject("Sketcher::SketchObject", "Sketch027")
sketch28.AttachmentSupport = (doc.getObject("XY_Plane027"), [""])
sketch28.MapMode = "FlatFace"
sketch28.AttachmentOffset = App.Placement(Vector(0, 0, -2), App.Rotation())
sketch28.addGeometry(Part.Circle(Vector(14, 9, 0), Vector(0, 0, 1), 3), False)
sketch28.addConstraint([
    Sketcher.Constraint("Diameter", 0, 6.0),
    Sketcher.Constraint("DistanceX", -1, 1, 0, 3, 14.0),
    Sketcher.Constraint("DistanceY", -1, 1, 0, 3, 9.0),
])
pad28 = body28.newObject("PartDesign::Pad", "Pad027")
pad28.Profile = sketch28
pad28.Length = 30
body29 = doc.addObject("PartDesign::Body", "Body028")

# Sketch on XY plane
sketch29 = body29.newObject("Sketcher::SketchObject", "Sketch028")
sketch29.AttachmentSupport = (doc.getObject("XY_Plane028"), [""])
sketch29.MapMode = "FlatFace"
sketch29.AttachmentOffset = App.Placement(Vector(0, 0, -2), App.Rotation())
sketch29.addGeometry(Part.Circle(Vector(59, 9, 0), Vector(0, 0, 1), 3), False)
sketch29.addConstraint([
    Sketcher.Constraint("Diameter", 0, 6.0),
    Sketcher.Constraint("DistanceX", -1, 1, 0, 3, 59.0),
    Sketcher.Constraint("DistanceY", -1, 1, 0, 3, 9.0),
])
pad29 = body29.newObject("PartDesign::Pad", "Pad028")
pad29.Profile = sketch29
pad29.Length = 30
body30 = doc.addObject("PartDesign::Body", "Body029")

# Sketch on XY plane
sketch30 = body30.newObject("Sketcher::SketchObject", "Sketch029")
sketch30.AttachmentSupport = (doc.getObject("XY_Plane029"), [""])
sketch30.MapMode = "FlatFace"
add_polygon(sketch30, [(-27, 195), (-27, -5), (10, -5), (10, 195)])  # lines 0-3
sketch30.addConstraint([
    Sketcher.Constraint("Vertical", 0),
    Sketcher.Constraint("Horizontal", 1),
    Sketcher.Constraint("Vertical", 2),
    Sketcher.Constraint("Horizontal", 3),
    Sketcher.Constraint("DistanceY", 0, 2, 0, 1, 200.0),
    Sketcher.Constraint("DistanceX", 1, 1, 1, 2, 37.2),
    Sketcher.Constraint("DistanceY", 0, 2, -1, 1, 5.0),
    Sketcher.Constraint("DistanceX", 0, 2, -1, 1, 27.1),
])
pad30 = body30.newObject("PartDesign::Pad", "Pad029")
pad30.Profile = sketch30
pad30.Length = 3.5
body31 = doc.addObject("PartDesign::Body", "Body030")

# Sketch on XY plane
sketch31 = body31.newObject("Sketcher::SketchObject", "Sketch030")
sketch31.AttachmentSupport = (doc.getObject("XY_Plane030"), [""])
sketch31.MapMode = "FlatFace"
add_polygon(sketch31, [(153, 195), (153, -5), (190, -5), (190, 195)])  # lines 0-3
sketch31.addConstraint([
    Sketcher.Constraint("Vertical", 0),
    Sketcher.Constraint("Horizontal", 1),
    Sketcher.Constraint("Vertical", 2),
    Sketcher.Constraint("Horizontal", 3),
    Sketcher.Constraint("DistanceY", 0, 2, 0, 1, 200.0),
    Sketcher.Constraint("DistanceX", 1, 1, 1, 2, 37.2),
    Sketcher.Constraint("DistanceY", 0, 2, -1, 1, 5.0),
    Sketcher.Constraint("DistanceX", -1, 1, 0, 2, 152.9),
])
pad31 = body31.newObject("PartDesign::Pad", "Pad030")
pad31.Profile = sketch31
pad31.Length = 3.5
body32 = doc.addObject("PartDesign::Body", "Body031")

# Sketch on XY plane
sketch32 = body32.newObject("Sketcher::SketchObject", "Sketch031")
sketch32.AttachmentSupport = (doc.getObject("XY_Plane031"), [""])
sketch32.MapMode = "FlatFace"
add_polygon(sketch32, [(108, 195), (108, -5), (145, -5), (145, 195)])  # lines 0-3
sketch32.addConstraint([
    Sketcher.Constraint("Vertical", 0),
    Sketcher.Constraint("Horizontal", 1),
    Sketcher.Constraint("Vertical", 2),
    Sketcher.Constraint("Horizontal", 3),
    Sketcher.Constraint("DistanceY", 0, 2, 0, 1, 200.0),
    Sketcher.Constraint("DistanceX", 1, 1, 1, 2, 37.2),
    Sketcher.Constraint("DistanceY", 0, 2, -1, 1, 5.0),
    Sketcher.Constraint("DistanceX", -1, 1, 0, 2, 107.9),
])
pad32 = body32.newObject("PartDesign::Pad", "Pad031")
pad32.Profile = sketch32
pad32.Length = 3.5
body33 = doc.addObject("PartDesign::Body", "Body032")

# Sketch on XY plane
sketch33 = body33.newObject("Sketcher::SketchObject", "Sketch032")
sketch33.AttachmentSupport = (doc.getObject("XY_Plane032"), [""])
sketch33.MapMode = "FlatFace"
add_polygon(sketch33, [(63, 195), (63, -5), (100, -5), (100, 195)])  # lines 0-3
sketch33.addConstraint([
    Sketcher.Constraint("Vertical", 0),
    Sketcher.Constraint("Horizontal", 1),
    Sketcher.Constraint("Vertical", 2),
    Sketcher.Constraint("Horizontal", 3),
    Sketcher.Constraint("DistanceY", 0, 2, 0, 1, 200.0),
    Sketcher.Constraint("DistanceX", 1, 1, 1, 2, 37.2),
    Sketcher.Constraint("DistanceY", 0, 2, -1, 1, 5.0),
    Sketcher.Constraint("DistanceX", -1, 1, 0, 2, 62.9),
])
pad33 = body33.newObject("PartDesign::Pad", "Pad032")
pad33.Profile = sketch33
pad33.Length = 3.5
body34 = doc.addObject("PartDesign::Body", "Body033")

# Sketch on XY plane
sketch34 = body34.newObject("Sketcher::SketchObject", "Sketch033")
sketch34.AttachmentSupport = (doc.getObject("XY_Plane033"), [""])
sketch34.MapMode = "FlatFace"
add_polygon(sketch34, [(18, 195), (18, -5), (55, -5), (55, 195)])  # lines 0-3
sketch34.addConstraint([
    Sketcher.Constraint("Vertical", 0),
    Sketcher.Constraint("Horizontal", 1),
    Sketcher.Constraint("Vertical", 2),
    Sketcher.Constraint("Horizontal", 3),
    Sketcher.Constraint("DistanceY", 0, 2, 0, 1, 200.0),
    Sketcher.Constraint("DistanceX", 1, 1, 1, 2, 37.2),
    Sketcher.Constraint("DistanceY", 0, 2, -1, 1, 5.0),
    Sketcher.Constraint("DistanceX", -1, 1, 0, 2, 17.9),
])
pad34 = body34.newObject("PartDesign::Pad", "Pad033")
pad34.Profile = sketch34
pad34.Length = 3.5
body35 = doc.addObject("PartDesign::Body", "Body034")

# Sketch on XY plane
sketch35 = body35.newObject("Sketcher::SketchObject", "Sketch034")
sketch35.AttachmentSupport = (doc.getObject("XY_Plane034"), [""])
sketch35.MapMode = "FlatFace"
add_polygon(sketch35, [(0, 190), (0, 0), (163, 0), (163, 190)])  # lines 0-3
sketch35.addConstraint([
    Sketcher.Constraint("Vertical", 0),
    Sketcher.Constraint("Horizontal", 1),
    Sketcher.Constraint("Vertical", 2),
    Sketcher.Constraint("Horizontal", 3),
    Sketcher.Constraint("Coincident", 0, 2, -1, 1),
    Sketcher.Constraint("DistanceX", 1, 1, 1, 2, 163.0),
    Sketcher.Constraint("DistanceY", 0, 2, 0, 1, 190.0),
])
pad35 = body35.newObject("PartDesign::Pad", "Pad034")
pad35.Profile = sketch35
pad35.Length = 8
doc.recompute()

boolean15 = body35.newObject("PartDesign::Boolean", "Boolean014")
boolean15.Type = "Cut"
boolean15.addObjects([body34])
doc.recompute()

boolean16 = body35.newObject("PartDesign::Boolean", "Boolean015")
boolean16.Type = "Cut"
boolean16.addObjects([body33])
doc.recompute()

boolean17 = body35.newObject("PartDesign::Boolean", "Boolean016")
boolean17.Type = "Cut"
boolean17.addObjects([body32])
doc.recompute()

boolean18 = body35.newObject("PartDesign::Boolean", "Boolean017")
boolean18.Type = "Cut"
boolean18.addObjects([body31])
doc.recompute()

boolean19 = body35.newObject("PartDesign::Boolean", "Boolean018")
boolean19.Type = "Cut"
boolean19.addObjects([body30])
doc.recompute()

boolean20 = body35.newObject("PartDesign::Boolean", "Boolean019")
boolean20.Type = "Cut"
boolean20.addObjects([body29])
doc.recompute()

boolean21 = body35.newObject("PartDesign::Boolean", "Boolean020")
boolean21.Type = "Cut"
boolean21.addObjects([body28])
doc.recompute()

boolean22 = body35.newObject("PartDesign::Boolean", "Boolean021")
boolean22.Type = "Cut"
boolean22.addObjects([body27])
doc.recompute()

boolean23 = body35.newObject("PartDesign::Boolean", "Boolean022")
boolean23.Type = "Cut"
boolean23.addObjects([body26])
doc.recompute()

boolean24 = body35.newObject("PartDesign::Boolean", "Boolean023")
boolean24.Type = "Cut"
boolean24.addObjects([body25])
doc.recompute()

boolean25 = body35.newObject("PartDesign::Boolean", "Boolean024")
boolean25.Type = "Cut"
boolean25.addObjects([body24])
doc.recompute()

boolean26 = body35.newObject("PartDesign::Boolean", "Boolean025")
boolean26.Type = "Cut"
boolean26.addObjects([body23])
doc.recompute()

boolean27 = body35.newObject("PartDesign::Boolean", "Boolean026")
boolean27.Type = "Cut"
boolean27.addObjects([body22])
doc.recompute()

boolean28 = body35.newObject("PartDesign::Boolean", "Boolean027")
boolean28.Type = "Cut"
boolean28.addObjects([body21])
doc.recompute()

boolean29 = body35.newObject("PartDesign::Boolean", "Boolean028")
boolean29.Type = "Cut"
boolean29.addObjects([body20])
doc.recompute()

boolean30 = body35.newObject("PartDesign::Boolean", "Boolean029")
boolean30.Type = "Cut"
boolean30.addObjects([body19])
doc.recompute()

boolean31 = body35.newObject("PartDesign::Boolean", "Boolean030")
boolean31.Type = "Cut"
boolean31.addObjects([body18])
doc.recompute()

chamfer3 = body35.newObject("PartDesign::Chamfer", "Chamfer002")
chamfer3.Base = (boolean31, edges_at(boolean31, [
    (0, 95, 8),
    (81.5, 0, 8),
    (81.5, 190, 8),
    (163, 95, 8),
]))
chamfer3.Size = 1

doc.recompute()
